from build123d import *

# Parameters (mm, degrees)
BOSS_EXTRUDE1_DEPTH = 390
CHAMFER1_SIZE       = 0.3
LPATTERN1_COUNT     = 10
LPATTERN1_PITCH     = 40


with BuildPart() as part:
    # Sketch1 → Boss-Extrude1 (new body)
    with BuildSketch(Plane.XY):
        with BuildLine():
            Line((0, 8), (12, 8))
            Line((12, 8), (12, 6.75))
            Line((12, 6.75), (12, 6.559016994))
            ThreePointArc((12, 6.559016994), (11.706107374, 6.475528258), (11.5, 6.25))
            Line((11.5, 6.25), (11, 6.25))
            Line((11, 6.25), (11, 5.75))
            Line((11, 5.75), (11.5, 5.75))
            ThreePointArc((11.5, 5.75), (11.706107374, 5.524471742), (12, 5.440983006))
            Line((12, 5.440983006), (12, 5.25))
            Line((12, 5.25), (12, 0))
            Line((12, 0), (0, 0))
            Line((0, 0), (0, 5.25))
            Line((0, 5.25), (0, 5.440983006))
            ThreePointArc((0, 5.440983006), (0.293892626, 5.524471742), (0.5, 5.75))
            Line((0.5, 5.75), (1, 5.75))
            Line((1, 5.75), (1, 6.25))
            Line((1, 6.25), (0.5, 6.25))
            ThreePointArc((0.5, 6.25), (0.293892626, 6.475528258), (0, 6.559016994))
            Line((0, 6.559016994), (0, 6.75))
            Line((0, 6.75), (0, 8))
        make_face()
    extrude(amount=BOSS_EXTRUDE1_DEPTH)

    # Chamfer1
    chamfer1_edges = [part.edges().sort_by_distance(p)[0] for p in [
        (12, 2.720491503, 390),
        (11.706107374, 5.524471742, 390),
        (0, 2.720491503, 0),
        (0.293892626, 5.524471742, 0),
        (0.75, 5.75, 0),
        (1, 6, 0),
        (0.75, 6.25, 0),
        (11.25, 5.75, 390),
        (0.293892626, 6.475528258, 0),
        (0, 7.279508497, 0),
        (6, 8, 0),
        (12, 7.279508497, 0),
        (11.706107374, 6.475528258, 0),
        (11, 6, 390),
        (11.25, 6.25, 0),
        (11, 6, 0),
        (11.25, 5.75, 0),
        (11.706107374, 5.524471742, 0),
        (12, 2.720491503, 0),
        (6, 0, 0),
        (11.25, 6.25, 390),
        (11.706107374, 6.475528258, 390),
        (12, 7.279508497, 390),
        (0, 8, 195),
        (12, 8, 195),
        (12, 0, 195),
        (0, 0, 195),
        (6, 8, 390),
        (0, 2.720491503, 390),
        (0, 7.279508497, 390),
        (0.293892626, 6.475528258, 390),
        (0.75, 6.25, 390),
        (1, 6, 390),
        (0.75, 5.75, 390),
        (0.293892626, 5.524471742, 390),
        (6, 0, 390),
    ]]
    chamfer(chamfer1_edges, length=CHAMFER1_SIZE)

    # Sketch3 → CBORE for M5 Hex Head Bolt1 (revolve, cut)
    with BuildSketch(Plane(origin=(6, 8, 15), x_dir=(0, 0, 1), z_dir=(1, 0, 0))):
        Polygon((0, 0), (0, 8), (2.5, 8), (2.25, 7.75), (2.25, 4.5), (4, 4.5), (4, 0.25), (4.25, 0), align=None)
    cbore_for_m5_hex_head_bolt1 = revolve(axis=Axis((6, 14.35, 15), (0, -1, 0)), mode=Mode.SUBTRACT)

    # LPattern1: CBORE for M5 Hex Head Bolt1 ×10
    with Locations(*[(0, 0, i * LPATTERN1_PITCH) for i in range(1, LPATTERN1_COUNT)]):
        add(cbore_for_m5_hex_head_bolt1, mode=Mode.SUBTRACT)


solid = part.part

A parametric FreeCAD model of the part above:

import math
import FreeCAD as App
import Part
import Sketcher
from FreeCAD import Vector
Q = App.Units.Quantity


def edges_at(feature, points):
    """Names of the edges that pass closest to the given points."""
    edges = feature.Shape.Edges
    near = lambda p: min(range(len(edges)), key=lambda i: edges[i].distToShape(Part.Vertex(*p))[0])
    return sorted({f"Edge{near(p) + 1}" for p in points})

doc = App.newDocument("Part")
body = doc.addObject("PartDesign::Body", "Body")

sketch1 = body.newObject("Sketcher::SketchObject", "Sketch")
sketch1.AttachmentSupport = (doc.getObject("XY_Plane"), [""])
sketch1.MapMode = "FlatFace"
sketch1.addGeometry([
    Part.LineSegment(Vector(12, 8, 0), Vector(0, 8, 0)),
    Part.LineSegment(Vector(0, 8, 0), Vector(0, 6.6, 0)),
    Part.ArcOfCircle(Part.Circle(Vector(0, 6, 0), Vector(0, 0, 1), 0.6), math.radians(27), math.radians(90)),
    Part.LineSegment(Vector(0.5, 6.2, 0), Vector(1, 6.2, 0)),
    Part.LineSegment(Vector(1, 6.2, 0), Vector(1, 5.8, 0)),
    Part.LineSegment(Vector(1, 5.8, 0), Vector(0.5, 5.8, 0)),
    Part.ArcOfCircle(Part.Circle(Vector(0, 6, 0), Vector(0, 0, 1), 0.6), math.radians(-90), math.radians(-27)),
    Part.LineSegment(Vector(0, 5.4, 0), Vector(0, 0, 0)),
    Part.LineSegment(Vector(0, 0, 0), Vector(12, 0, 0)),
    Part.LineSegment(Vector(12, 0, 0), Vector(12, 5.4, 0)),
    Part.ArcOfCircle(Part.Circle(Vector(12, 6, 0), Vector(0, 0, 1), 0.6), math.radians(-153), math.radians(-90)),
    Part.LineSegment(Vector(11.5, 5.8, 0), Vector(11, 5.8, 0)),
    Part.LineSegment(Vector(11, 5.8, 0), Vector(11, 6.2, 0)),
    Part.LineSegment(Vector(11, 6.2, 0), Vector(11.5, 6.2, 0)),
    Part.ArcOfCircle(Part.Circle(Vector(12, 6, 0), Vector(0, 0, 1), 0.6), math.radians(90), math.radians(153)),
    Part.LineSegment(Vector(12, 6.6, 0), Vector(12, 8, 0)),
], False)
sketch1.addConstraint([
    Sketcher.Constraint("Coincident", 0, 2, 1, 1),
    Sketcher.Constraint("Coincident", 1, 2, 2, 2),
    Sketcher.Constraint("Coincident", 2, 1, 3, 1),
    Sketcher.Constraint("Coincident", 3, 2, 4, 1),
    Sketcher.Constraint("Coincident", 4, 2, 5, 1),
    Sketcher.Constraint("Coincident", 5, 2, 6, 2),
    Sketcher.Constraint("Coincident", 6, 1, 7, 1),
    Sketcher.Constraint("Coincident", 7, 2, 8, 1),
    Sketcher.Constraint("Coincident", 8, 2, 9, 1),
    Sketcher.Constraint("Coincident", 9, 2, 10, 2),
    Sketcher.Constraint("Coincident", 10, 1, 11, 1),
    Sketcher.Constraint("Coincident", 11, 2, 12, 1),
    Sketcher.Constraint("Coincident", 12, 2, 13, 1),
    Sketcher.Constraint("Coincident", 13, 2, 14, 2),
    Sketcher.Constraint("Coincident", 14, 1, 15, 1),
    Sketcher.Constraint("Coincident", 15, 2, 0, 1),
    Sketcher.Constraint("Horizontal", 0),
    Sketcher.Constraint("Vertical", 1),
    Sketcher.Constraint("Horizontal", 3),
    Sketcher.Constraint("Vertical", 4),
    Sketcher.Constraint("Horizontal", 5),
    Sketcher.Constraint("Vertical", 7),
    Sketcher.Constraint("Horizontal", 8),
    Sketcher.Constraint("Vertical", 9),
    Sketcher.Constraint("Horizontal", 11),
    Sketcher.Constraint("Vertical", 12),
    Sketcher.Constraint("Horizontal", 13),
    Sketcher.Constraint("Vertical", 15),
    Sketcher.Constraint("Coincident", 7, 2, -1, 1),
    Sketcher.Constraint("Coincident", 6, 3, 2, 3),
    Sketcher.Constraint("Coincident", 14, 3, 10, 3),
    Sketcher.Constraint("Equal", 2, 6),
    Sketcher.Constraint("Equal", 6, 10),
    Sketcher.Constraint("Equal", 10, 14),
    Sketcher.Constraint("PointOnObject", 2, 3, -2),
    Sketcher.Constraint("PointOnObject", 0, 2, -2),
    Sketcher.Constraint("Horizontal", 6, 3, 10, 3),
    Sketcher.Constraint("Horizontal", 5, 2, 10, 1),
    Sketcher.Constraint("Horizontal", 3, 2, 12, 2),
    Sketcher.Constraint("Vertical", 2, 1, 5, 2),
    Sketcher.Constraint("Vertical", 14, 3, 8, 2),
    Sketcher.Constraint("Vertical", 9, 2, 14, 1),
    Sketcher.Constraint("Equal", 5, 11),
    Sketcher.Constraint("Equal", 13, 4),
    Sketcher.Constraint("DistanceX", 0, 2, 0, 1, 12.0),
    Sketcher.Constraint("DistanceX", 3, 1, 3, 2, 0.5),
    Sketcher.Constraint("DistanceY", -1, 1, 2, 3, 6.0),
    Sketcher.Constraint("DistanceY", -1, 1, 0, 2, 8.0),
    Sketcher.Constraint("DistanceX", -1, 1, 3, 2, 1.0),
])
pad1 = body.newObject("PartDesign::Pad", "Pad")
pad1.Profile = sketch1
pad1.Length = 390
doc.recompute()

chamfer = body.newObject("PartDesign::Chamfer", "Chamfer")
chamfer.Base = (pad1, edges_at(pad1, [
    (12, 2.72, 390),
    (11.706, 5.524, 390),
    (0, 2.72, 0),
    (0.294, 5.524, 0),
    (0.75, 5.75, 0),
    (1, 6, 0),
    (0.75, 6.25, 0),
    (11.25, 5.75, 390),
    (0.294, 6.476, 0),
    (0, 7.28, 0),
    (6, 8, 0),
    (12, 7.28, 0),
    (11.706, 6.476, 0),
    (11, 6, 390),
    (11.25, 6.25, 0),
    (11, 6, 0),
    (11.25, 5.75, 0),
    (11.706, 5.524, 0),
    (12, 2.72, 0),
    (6, 0, 0),
    (11.25, 6.25, 390),
    (11.706, 6.476, 390),
    (12, 7.28, 390),
    (0, 8, 195),
    (12, 8, 195),
    (12, 0, 195),
    (0, 0, 195),
    (6, 8, 390),
    (0, 2.72, 390),
    (0, 7.28, 390),
    (0.294, 6.476, 390),
    (0.75, 6.25, 390),
    (1, 6, 390),
    (0.75, 5.75, 390),
    (0.294, 5.524, 390),
    (6, 0, 390),
]))
chamfer.Size = 0.3

sketch2 = body.newObject("Sketcher::SketchObject", "Sketch001")
sketch2.AttachmentSupport = (doc.getObject("YZ_Plane"), [""])
sketch2.MapMode = "FlatFace"
sketch2.AttachmentOffset = App.Placement(Vector(0, 0, 6), App.Rotation())
sketch2.addGeometry([
    Part.LineSegment(Vector(0, 15, 0), Vector(8, 15, 0)),
    Part.LineSegment(Vector(8, 15, 0), Vector(8, 19.25, 0)),
    Part.LineSegment(Vector(8, 19.25, 0), Vector(7.75, 19, 0)),
    Part.LineSegment(Vector(7.75, 19, 0), Vector(3.5, 19, 0)),
    Part.LineSegment(Vector(3.5, 19, 0), Vector(3.5, 17.25, 0)),
    Part.LineSegment(Vector(3.5, 17.25, 0), Vector(0.25, 17.25, 0)),
    Part.LineSegment(Vector(0.25, 17.25, 0), Vector(0, 17.5, 0)),
    Part.LineSegment(Vector(0, 17.5, 0), Vector(0, 15, 0)),
], False)
sketch2.addGeometry(Part.LineSegment(Vector(8, 15, 0), Vector(0, 15, 0)), True)
sketch2.addConstraint([
    Sketcher.Constraint("Coincident", 0, 2, 1, 1),
    Sketcher.Constraint("Coincident", 1, 2, 2, 1),
    Sketcher.Constraint("Coincident", 2, 2, 3, 1),
    Sketcher.Constraint("Coincident", 3, 2, 4, 1),
    Sketcher.Constraint("Coincident", 4, 2, 5, 1),
    Sketcher.Constraint("Coincident", 5, 2, 6, 1),
    Sketcher.Constraint("Coincident", 6, 2, 7, 1),
    Sketcher.Constraint("Coincident", 7, 2, 0, 1),
    Sketcher.Constraint("Horizontal", 0),
    Sketcher.Constraint("Vertical", 1),
    Sketcher.Constraint("Horizontal", 3),
    Sketcher.Constraint("Vertical", 4),
    Sketcher.Constraint("Horizontal", 5),
    Sketcher.Constraint("Vertical", 7),
    Sketcher.Constraint("Horizontal", 8),
    Sketcher.Constraint("Coincident", 8, 1, 0, 2),
    Sketcher.Constraint("PointOnObject", 6, 2, -2),
    Sketcher.Constraint("PointOnObject", 8, 2, -2),
    Sketcher.Constraint("Perpendicular", 2, 6),
    Sketcher.Constraint("Equal", 3, 1),
    Sketcher.Constraint("Equal", 2, 6),
    Sketcher.Constraint("DistanceX", 0, 1, 0, 2, 8.0),
    Sketcher.Constraint("Angle", 2, Q("-135 deg")),
    Sketcher.Constraint("DistanceY", 7, 2, 7, 1, 2.5),
    Sketcher.Constraint("DistanceY", -1, 1, 0, 2, 15.0),
    Sketcher.Constraint("DistanceY", -1, 1, 2, 2, 19.0),
    Sketcher.Constraint("DistanceY", 4, 2, 1, 2, 2.0),
])
groove = body.newObject("PartDesign::Groove", "Groove")
groove.Profile = sketch2
groove.ReferenceAxis = (sketch2, ["Axis0"])
groove.Angle = 360
doc.recompute()

linearpattern = body.newObject("PartDesign::LinearPattern", "LinearPattern")
linearpattern.Originals = [groove]
linearpattern.Direction = (doc.getObject("Z_Axis"), [""])
linearpattern.Mode = "offset"
linearpattern.Offset = 40
linearpattern.Occurrences = 10
body.Tip = linearpattern

doc.recompute()
